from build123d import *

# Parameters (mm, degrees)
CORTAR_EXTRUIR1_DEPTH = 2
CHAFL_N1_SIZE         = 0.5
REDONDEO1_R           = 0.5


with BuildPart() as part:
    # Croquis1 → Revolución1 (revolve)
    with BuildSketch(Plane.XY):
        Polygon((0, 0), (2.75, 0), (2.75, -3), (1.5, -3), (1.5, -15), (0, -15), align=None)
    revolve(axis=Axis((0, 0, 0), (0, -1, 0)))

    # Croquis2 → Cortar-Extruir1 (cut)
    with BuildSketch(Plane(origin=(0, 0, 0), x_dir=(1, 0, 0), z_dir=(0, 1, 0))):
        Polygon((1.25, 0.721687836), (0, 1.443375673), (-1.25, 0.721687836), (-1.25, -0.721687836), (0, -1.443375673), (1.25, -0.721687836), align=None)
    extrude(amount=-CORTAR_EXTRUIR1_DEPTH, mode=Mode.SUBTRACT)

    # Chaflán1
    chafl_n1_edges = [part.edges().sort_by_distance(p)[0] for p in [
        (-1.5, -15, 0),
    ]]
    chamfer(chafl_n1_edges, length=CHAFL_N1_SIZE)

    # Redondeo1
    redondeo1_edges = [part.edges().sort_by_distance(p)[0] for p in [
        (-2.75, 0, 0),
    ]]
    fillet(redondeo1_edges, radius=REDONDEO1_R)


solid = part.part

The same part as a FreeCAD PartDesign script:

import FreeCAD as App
import Part
import Sketcher

V = App.Vector
Q = App.Units.Quantity


def edges_at(feature, points):
    """Names of the edges that pass closest to the given points."""
    edges = feature.Shape.Edges
    near = lambda p: min(range(len(edges)), key=lambda i: edges[i].distToShape(Part.Vertex(*p))[0])
    return sorted({f"Edge{near(p) + 1}" for p in points})


def add_polygon(sketch, points):
    """Adds a closed chain of lines whose ends are joined by coincident constraints."""
    first, n = sketch.GeometryCount, len(points)
    for a, b in zip(points, points[1:] + points[:1]):
        sketch.addGeometry(Part.LineSegment(App.Vector(*a, 0), App.Vector(*b, 0)), False)
    for i in range(n):
        sketch.addConstraint(Sketcher.Constraint("Coincident", first + i, 2, first + (i + 1) % n, 1))

doc = App.newDocument("Part")
params = doc.addObject("Spreadsheet::Sheet", "Params")
for row, (alias, value) in enumerate([
    ("sketch1_height", "15 mm"),
    ("sketch1_height2", "12 mm"),
    ("sketch1_width", "1.5 mm"),
    ("sketch1_width2", "2.75 mm"),
    ("revolution_angle", "360 deg"),
    ("pocket1_length", "2 mm"),
    ("chamfer_size", "0.5 mm"),
    ("fillet_radius", "0.5 mm"),
], start=1):
    params.set(f"A{row}", alias)
    params.set(f"B{row}", "=" + value)
    params.setAlias(f"B{row}", alias)

body = doc.addObject("PartDesign::Body", "Body")

sketch1 = doc.addObject("Sketcher::SketchObject", "Sketch")
body.addObject(sketch1)
sketch1.AttachmentSupport = (doc.XY_Plane, [""])
sketch1.MapMode = "FlatFace"
add_polygon(sketch1, [(2.8, 0), (0, 0), (0, -15), (1.5, -15), (1.5, -3), (2.8, -3)])
sketch1.addConstraint(Sketcher.Constraint("Horizontal", 0))
sketch1.addConstraint(Sketcher.Constraint("Vertical", 1))
sketch1.addConstraint(Sketcher.Constraint("Horizontal", 2))
sketch1.addConstraint(Sketcher.Constraint("Vertical", 3))
sketch1.addConstraint(Sketcher.Constraint("Horizontal", 4))
sketch1.addConstraint(Sketcher.Constraint("Vertical", 5))
sketch1.addConstraint(Sketcher.Constraint("Coincident", 0, 2, -1, 1))
sketch1.addConstraint(Sketcher.Constraint("DistanceY", 1, 2, 1, 1, 15.0))
sketch1.addConstraint(Sketcher.Constraint("DistanceY", 3, 1, 3, 2, 12.0))
sketch1.addConstraint(Sketcher.Constraint("DistanceX", 2, 1, 2, 2, 1.5))
sketch1.addConstraint(Sketcher.Constraint("DistanceX", 0, 2, 0, 1, 2.75))
sketch1.setExpression("Constraints[13]", "Params.sketch1_height")
sketch1.setExpression("Constraints[14]", "Params.sketch1_height2")
sketch1.setExpression("Constraints[15]", "Params.sketch1_width")
sketch1.setExpression("Constraints[16]", "Params.sketch1_width2")
revolution = doc.addObject("PartDesign::Revolution", "Revolution")
body.addObject(revolution)
revolution.Profile = sketch1
revolution.ReferenceAxis = (sketch1, ["V_Axis"])
revolution.setExpression("Angle", "Params.revolution_angle")

sketch2 = doc.addObject("Sketcher::SketchObject", "Sketch001")
body.addObject(sketch2)
sketch2.AttachmentSupport = (doc.XZ_Plane, [""])
sketch2.MapMode = "FlatFace"
add_polygon(sketch2, [(1.2, -0.7), (0, -1.4), (-1.2, -0.7), (-1.2, 0.7), (0, 1.4), (1.2, 0.7)])
sketch2.addConstraint(Sketcher.Constraint("Vertical", 2))
sketch2.addConstraint(Sketcher.Constraint("Vertical", 5))
sketch2.addConstraint(Sketcher.Constraint("Symmetric", 0, 2, 3, 2, -1, 1))
sketch2.addConstraint(Sketcher.Constraint("Symmetric", 1, 2, 4, 2, -1, 1))
sketch2.addConstraint(Sketcher.Constraint("PointOnObject", 0, 2, -2))
sketch2.addConstraint(Sketcher.Constraint("Parallel", 0, 3))
sketch2.addConstraint(Sketcher.Constraint("Horizontal", 2, 2, 4, 2))
sketch2.addConstraint(Sketcher.Constraint("Angle", 0, Q("-150 deg")))
sketch2.addConstraint(Sketcher.Constraint("DistanceX", 2, 2, 4, 2, 2.5))
sketch2.addConstraint(Sketcher.Constraint("DistanceY", 2, 1, 2, 2, 1.443376))
pocket1 = doc.addObject("PartDesign::Pocket", "Pocket")
body.addObject(pocket1)
pocket1.Profile = sketch2
pocket1.setExpression("Length", "Params.pocket1_length")
pocket1.Reversed = True
doc.recompute()

chamfer = doc.addObject("PartDesign::Chamfer", "Chamfer")
body.addObject(chamfer)
chamfer.Base = (pocket1, edges_at(pocket1, [(-1.5, -15, 0)]))
chamfer.setExpression("Size", "Params.chamfer_size")
doc.recompute()

fillet = doc.addObject("PartDesign::Fillet", "Fillet")
body.addObject(fillet)
fillet.Base = (chamfer, edges_at(chamfer, [(-2.75, 0, 0)]))
fillet.setExpression("Radius", "Params.fillet_radius")

doc.recompute()
